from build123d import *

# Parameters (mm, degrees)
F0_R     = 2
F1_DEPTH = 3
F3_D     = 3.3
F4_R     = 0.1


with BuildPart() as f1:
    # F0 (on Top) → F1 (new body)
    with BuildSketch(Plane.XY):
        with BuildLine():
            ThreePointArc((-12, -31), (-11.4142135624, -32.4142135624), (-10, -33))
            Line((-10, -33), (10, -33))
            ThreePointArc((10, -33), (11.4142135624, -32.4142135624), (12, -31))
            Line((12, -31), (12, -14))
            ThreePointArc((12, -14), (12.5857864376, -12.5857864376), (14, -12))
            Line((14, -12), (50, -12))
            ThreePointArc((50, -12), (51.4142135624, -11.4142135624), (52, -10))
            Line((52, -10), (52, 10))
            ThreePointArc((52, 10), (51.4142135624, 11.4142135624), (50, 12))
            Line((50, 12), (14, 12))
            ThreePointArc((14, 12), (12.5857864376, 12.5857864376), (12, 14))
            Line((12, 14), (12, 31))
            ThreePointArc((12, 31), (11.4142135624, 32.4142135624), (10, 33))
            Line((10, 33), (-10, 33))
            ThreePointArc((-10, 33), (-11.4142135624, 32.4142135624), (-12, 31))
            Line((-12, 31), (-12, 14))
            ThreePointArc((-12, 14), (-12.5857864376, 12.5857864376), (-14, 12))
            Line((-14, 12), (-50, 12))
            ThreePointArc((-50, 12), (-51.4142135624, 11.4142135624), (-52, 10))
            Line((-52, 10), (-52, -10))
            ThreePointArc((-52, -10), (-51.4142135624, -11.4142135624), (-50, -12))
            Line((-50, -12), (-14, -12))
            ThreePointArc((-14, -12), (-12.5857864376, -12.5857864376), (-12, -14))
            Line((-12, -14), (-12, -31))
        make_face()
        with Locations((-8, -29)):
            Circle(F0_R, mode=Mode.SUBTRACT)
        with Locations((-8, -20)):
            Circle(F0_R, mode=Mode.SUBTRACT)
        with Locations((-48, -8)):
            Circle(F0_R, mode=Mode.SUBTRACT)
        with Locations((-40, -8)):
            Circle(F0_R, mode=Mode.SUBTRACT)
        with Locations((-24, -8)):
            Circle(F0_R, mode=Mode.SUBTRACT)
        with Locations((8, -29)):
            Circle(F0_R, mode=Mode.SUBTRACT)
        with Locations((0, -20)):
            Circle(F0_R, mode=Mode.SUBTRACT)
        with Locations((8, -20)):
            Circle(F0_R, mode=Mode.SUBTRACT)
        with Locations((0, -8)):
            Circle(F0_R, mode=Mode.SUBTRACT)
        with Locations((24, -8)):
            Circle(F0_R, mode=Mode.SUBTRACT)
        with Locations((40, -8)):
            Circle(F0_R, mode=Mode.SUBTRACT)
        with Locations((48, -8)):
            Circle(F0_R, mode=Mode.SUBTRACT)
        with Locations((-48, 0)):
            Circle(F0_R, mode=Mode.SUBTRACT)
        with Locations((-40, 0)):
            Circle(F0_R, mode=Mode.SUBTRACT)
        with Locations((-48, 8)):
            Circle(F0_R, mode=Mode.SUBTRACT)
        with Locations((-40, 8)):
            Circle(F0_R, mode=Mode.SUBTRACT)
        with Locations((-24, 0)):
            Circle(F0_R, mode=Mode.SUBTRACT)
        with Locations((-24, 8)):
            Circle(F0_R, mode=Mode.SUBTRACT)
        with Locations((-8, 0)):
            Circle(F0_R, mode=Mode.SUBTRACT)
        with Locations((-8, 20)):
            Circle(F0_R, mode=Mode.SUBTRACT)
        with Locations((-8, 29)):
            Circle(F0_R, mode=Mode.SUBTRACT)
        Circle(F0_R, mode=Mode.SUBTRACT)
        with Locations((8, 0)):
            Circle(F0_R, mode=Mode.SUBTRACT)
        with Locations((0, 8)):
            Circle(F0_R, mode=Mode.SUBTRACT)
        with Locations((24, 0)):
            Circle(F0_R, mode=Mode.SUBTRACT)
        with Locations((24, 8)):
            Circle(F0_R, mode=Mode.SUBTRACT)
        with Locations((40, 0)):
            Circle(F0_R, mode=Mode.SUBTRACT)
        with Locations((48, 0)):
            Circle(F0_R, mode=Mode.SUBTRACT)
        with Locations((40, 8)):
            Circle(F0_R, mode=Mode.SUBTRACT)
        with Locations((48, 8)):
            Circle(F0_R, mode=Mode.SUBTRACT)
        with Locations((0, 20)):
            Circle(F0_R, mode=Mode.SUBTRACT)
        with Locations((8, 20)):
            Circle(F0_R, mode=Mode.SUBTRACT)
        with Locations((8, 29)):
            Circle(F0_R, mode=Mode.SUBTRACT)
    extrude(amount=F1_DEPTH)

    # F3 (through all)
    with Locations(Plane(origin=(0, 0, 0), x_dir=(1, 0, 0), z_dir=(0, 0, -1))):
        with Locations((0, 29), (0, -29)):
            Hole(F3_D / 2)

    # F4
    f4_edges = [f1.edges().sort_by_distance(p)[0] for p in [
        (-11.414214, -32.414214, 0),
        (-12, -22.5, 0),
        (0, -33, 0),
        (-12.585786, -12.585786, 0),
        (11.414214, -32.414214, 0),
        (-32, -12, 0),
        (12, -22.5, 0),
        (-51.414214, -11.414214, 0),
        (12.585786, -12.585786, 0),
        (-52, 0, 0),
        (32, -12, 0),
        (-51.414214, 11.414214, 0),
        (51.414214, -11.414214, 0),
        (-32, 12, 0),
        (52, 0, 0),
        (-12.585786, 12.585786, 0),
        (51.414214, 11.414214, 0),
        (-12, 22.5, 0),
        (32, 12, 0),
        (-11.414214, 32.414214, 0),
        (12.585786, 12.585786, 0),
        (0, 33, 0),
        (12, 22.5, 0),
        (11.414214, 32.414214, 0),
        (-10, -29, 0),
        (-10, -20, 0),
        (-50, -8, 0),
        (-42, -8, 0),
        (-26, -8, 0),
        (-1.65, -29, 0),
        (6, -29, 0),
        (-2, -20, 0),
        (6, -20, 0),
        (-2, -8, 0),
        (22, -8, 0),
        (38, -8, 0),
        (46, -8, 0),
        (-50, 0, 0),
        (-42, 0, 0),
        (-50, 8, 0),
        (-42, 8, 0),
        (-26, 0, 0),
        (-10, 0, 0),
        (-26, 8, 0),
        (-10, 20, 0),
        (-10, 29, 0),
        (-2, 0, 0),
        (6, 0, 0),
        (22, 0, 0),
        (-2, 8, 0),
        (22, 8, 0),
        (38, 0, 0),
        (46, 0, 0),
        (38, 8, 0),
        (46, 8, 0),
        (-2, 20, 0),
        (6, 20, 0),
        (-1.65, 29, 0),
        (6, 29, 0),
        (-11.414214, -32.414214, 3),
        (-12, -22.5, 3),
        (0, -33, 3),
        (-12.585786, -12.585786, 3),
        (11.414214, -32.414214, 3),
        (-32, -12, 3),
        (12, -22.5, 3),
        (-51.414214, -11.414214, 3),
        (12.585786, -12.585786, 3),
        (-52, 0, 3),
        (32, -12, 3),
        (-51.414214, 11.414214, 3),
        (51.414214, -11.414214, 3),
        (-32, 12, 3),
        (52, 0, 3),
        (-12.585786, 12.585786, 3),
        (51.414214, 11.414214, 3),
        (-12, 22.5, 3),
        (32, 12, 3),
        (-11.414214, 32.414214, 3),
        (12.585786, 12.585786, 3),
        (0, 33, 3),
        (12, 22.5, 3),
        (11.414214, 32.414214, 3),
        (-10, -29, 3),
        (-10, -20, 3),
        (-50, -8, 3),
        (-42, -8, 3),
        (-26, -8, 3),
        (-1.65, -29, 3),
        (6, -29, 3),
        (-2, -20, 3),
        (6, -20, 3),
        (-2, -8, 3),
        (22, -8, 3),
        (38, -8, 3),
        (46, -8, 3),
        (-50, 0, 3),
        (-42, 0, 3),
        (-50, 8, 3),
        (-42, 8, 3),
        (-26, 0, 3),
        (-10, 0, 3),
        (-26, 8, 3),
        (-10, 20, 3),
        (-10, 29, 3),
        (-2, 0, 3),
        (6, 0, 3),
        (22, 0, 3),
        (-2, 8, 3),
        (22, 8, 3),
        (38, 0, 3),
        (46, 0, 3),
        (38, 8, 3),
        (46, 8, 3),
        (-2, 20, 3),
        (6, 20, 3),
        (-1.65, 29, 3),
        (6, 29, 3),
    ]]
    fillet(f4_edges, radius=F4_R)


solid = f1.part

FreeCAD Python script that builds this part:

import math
import FreeCAD as App
import Part
import Sketcher

V = App.Vector
Q = App.Units.Quantity


def edges_at(feature, points):
    """Names of the edges that pass closest to the given points."""
    edges = feature.Shape.Edges
    near = lambda p: min(range(len(edges)), key=lambda i: edges[i].distToShape(Part.Vertex(*p))[0])
    return sorted({f"Edge{near(p) + 1}" for p in points})

doc = App.newDocument("Part")
body = doc.addObject("PartDesign::Body", "Body")

sketch1 = body.newObject("Sketcher::SketchObject", "Sketch")
sketch1.AttachmentSupport = (doc.getObject("XY_Plane"), [""])
sketch1.MapMode = "FlatFace"
sketch1.addGeometry(Part.ArcOfCircle(Part.Circle(V(-10, -31, 0), V(0, 0, 1), 2), math.radians(180), math.radians(270)), False)
sketch1.addGeometry(Part.LineSegment(V(-10, -33, 0), V(10, -33, 0)), False)
sketch1.addGeometry(Part.ArcOfCircle(Part.Circle(V(10, -31, 0), V(0, 0, 1), 2), math.radians(-90), math.radians(0)), False)
sketch1.addGeometry(Part.LineSegment(V(12, -31, 0), V(12, -14, 0)), False)
sketch1.addGeometry(Part.ArcOfCircle(Part.Circle(V(14, -14, 0), V(0, 0, 1), 2), math.radians(90), math.radians(180)), False)
sketch1.addGeometry(Part.LineSegment(V(14, -12, 0), V(50, -12, 0)), False)
sketch1.addGeometry(Part.ArcOfCircle(Part.Circle(V(50, -10, 0), V(0, 0, 1), 2), math.radians(-90), math.radians(0)), False)
sketch1.addGeometry(Part.LineSegment(V(52, -10, 0), V(52, 10, 0)), False)
sketch1.addGeometry(Part.ArcOfCircle(Part.Circle(V(50, 10, 0), V(0, 0, 1), 2), math.radians(0), math.radians(90)), False)
sketch1.addGeometry(Part.LineSegment(V(50, 12, 0), V(14, 12, 0)), False)
sketch1.addGeometry(Part.ArcOfCircle(Part.Circle(V(14, 14, 0), V(0, 0, 1), 2), math.radians(180), math.radians(270)), False)
sketch1.addGeometry(Part.LineSegment(V(12, 14, 0), V(12, 31, 0)), False)
sketch1.addGeometry(Part.ArcOfCircle(Part.Circle(V(10, 31, 0), V(0, 0, 1), 2), math.radians(0), math.radians(90)), False)
sketch1.addGeometry(Part.LineSegment(V(10, 33, 0), V(-10, 33, 0)), False)
sketch1.addGeometry(Part.ArcOfCircle(Part.Circle(V(-10, 31, 0), V(0, 0, 1), 2), math.radians(90), math.radians(180)), False)
sketch1.addGeometry(Part.LineSegment(V(-12, 31, 0), V(-12, 14, 0)), False)
sketch1.addGeometry(Part.ArcOfCircle(Part.Circle(V(-14, 14, 0), V(0, 0, 1), 2), math.radians(-90), math.radians(0)), False)
sketch1.addGeometry(Part.LineSegment(V(-14, 12, 0), V(-50, 12, 0)), False)
sketch1.addGeometry(Part.ArcOfCircle(Part.Circle(V(-50, 10, 0), V(0, 0, 1), 2), math.radians(90), math.radians(180)), False)
sketch1.addGeometry(Part.LineSegment(V(-52, 10, 0), V(-52, -10, 0)), False)
sketch1.addGeometry(Part.ArcOfCircle(Part.Circle(V(-50, -10, 0), V(0, 0, 1), 2), math.radians(180), math.radians(270)), False)
sketch1.addGeometry(Part.LineSegment(V(-50, -12, 0), V(-14, -12, 0)), False)
sketch1.addGeometry(Part.ArcOfCircle(Part.Circle(V(-14, -14, 0), V(0, 0, 1), 2), math.radians(0), math.radians(90)), False)
sketch1.addGeometry(Part.LineSegment(V(-12, -14, 0), V(-12, -31, 0)), False)
sketch1.addGeometry(Part.Circle(V(-8, -29, 0), V(0, 0, 1), 2), False)
sketch1.addGeometry(Part.Circle(V(-8, -20, 0), V(0, 0, 1), 2), False)
sketch1.addGeometry(Part.Circle(V(-48, -8, 0), V(0, 0, 1), 2), False)
sketch1.addGeometry(Part.Circle(V(-40, -8, 0), V(0, 0, 1), 2), False)
sketch1.addGeometry(Part.Circle(V(-24, -8, 0), V(0, 0, 1), 2), False)
sketch1.addGeometry(Part.Circle(V(8, -29, 0), V(0, 0, 1), 2), False)
sketch1.addGeometry(Part.Circle(V(0, -20, 0), V(0, 0, 1), 2), False)
sketch1.addGeometry(Part.Circle(V(8, -20, 0), V(0, 0, 1), 2), False)
sketch1.addGeometry(Part.Circle(V(0, -8, 0), V(0, 0, 1), 2), False)
sketch1.addGeometry(Part.Circle(V(24, -8, 0), V(0, 0, 1), 2), False)
sketch1.addGeometry(Part.Circle(V(40, -8, 0), V(0, 0, 1), 2), False)
sketch1.addGeometry(Part.Circle(V(48, -8, 0), V(0, 0, 1), 2), False)
sketch1.addGeometry(Part.Circle(V(-48, 0, 0), V(0, 0, 1), 2), False)
sketch1.addGeometry(Part.Circle(V(-40, 0, 0), V(0, 0, 1), 2), False)
sketch1.addGeometry(Part.Circle(V(-48, 8, 0), V(0, 0, 1), 2), False)
sketch1.addGeometry(Part.Circle(V(-40, 8, 0), V(0, 0, 1), 2), False)
sketch1.addGeometry(Part.Circle(V(-24, 0, 0), V(0, 0, 1), 2), False)
sketch1.addGeometry(Part.Circle(V(-8, 0, 0), V(0, 0, 1), 2), False)
sketch1.addGeometry(Part.Circle(V(-24, 8, 0), V(0, 0, 1), 2), False)
sketch1.addGeometry(Part.Circle(V(-8, 20, 0), V(0, 0, 1), 2), False)
sketch1.addGeometry(Part.Circle(V(-8, 29, 0), V(0, 0, 1), 2), False)
sketch1.addGeometry(Part.Circle(V(0, 0, 0), V(0, 0, 1), 2), False)
sketch1.addGeometry(Part.Circle(V(8, 0, 0), V(0, 0, 1), 2), False)
sketch1.addGeometry(Part.Circle(V(24, 0, 0), V(0, 0, 1), 2), False)
sketch1.addGeometry(Part.Circle(V(0, 8, 0), V(0, 0, 1), 2), False)
sketch1.addGeometry(Part.Circle(V(24, 8, 0), V(0, 0, 1), 2), False)
sketch1.addGeometry(Part.Circle(V(40, 0, 0), V(0, 0, 1), 2), False)
sketch1.addGeometry(Part.Circle(V(48, 0, 0), V(0, 0, 1), 2), False)
sketch1.addGeometry(Part.Circle(V(40, 8, 0), V(0, 0, 1), 2), False)
sketch1.addGeometry(Part.Circle(V(48, 8, 0), V(0, 0, 1), 2), False)
sketch1.addGeometry(Part.Circle(V(0, 20, 0), V(0, 0, 1), 2), False)
sketch1.addGeometry(Part.Circle(V(8, 20, 0), V(0, 0, 1), 2), False)
sketch1.addGeometry(Part.Circle(V(8, 29, 0), V(0, 0, 1), 2), False)
sketch1.addConstraint(Sketcher.Constraint("Tangent", 0, 2, 1, 1))
sketch1.addConstraint(Sketcher.Constraint("Tangent", 1, 2, 2, 1))
sketch1.addConstraint(Sketcher.Constraint("Tangent", 2, 2, 3, 1))
sketch1.addConstraint(Sketcher.Constraint("Tangent", 3, 2, 4, 2))
sketch1.addConstraint(Sketcher.Constraint("Tangent", 4, 1, 5, 1))
sketch1.addConstraint(Sketcher.Constraint("Tangent", 5, 2, 6, 1))
sketch1.addConstraint(Sketcher.Constraint("Tangent", 6, 2, 7, 1))
sketch1.addConstraint(Sketcher.Constraint("Tangent", 7, 2, 8, 1))
sketch1.addConstraint(Sketcher.Constraint("Tangent", 8, 2, 9, 1))
sketch1.addConstraint(Sketcher.Constraint("Tangent", 9, 2, 10, 2))
sketch1.addConstraint(Sketcher.Constraint("Tangent", 10, 1, 11, 1))
sketch1.addConstraint(Sketcher.Constraint("Tangent", 11, 2, 12, 1))
sketch1.addConstraint(Sketcher.Constraint("Tangent", 12, 2, 13, 1))
sketch1.addConstraint(Sketcher.Constraint("Tangent", 13, 2, 14, 1))
sketch1.addConstraint(Sketcher.Constraint("Tangent", 14, 2, 15, 1))
sketch1.addConstraint(Sketcher.Constraint("Tangent", 15, 2, 16, 2))
sketch1.addConstraint(Sketcher.Constraint("Tangent", 16, 1, 17, 1))
sketch1.addConstraint(Sketcher.Constraint("Tangent", 17, 2, 18, 1))
sketch1.addConstraint(Sketcher.Constraint("Tangent", 18, 2, 19, 1))
sketch1.addConstraint(Sketcher.Constraint("Tangent", 19, 2, 20, 1))
sketch1.addConstraint(Sketcher.Constraint("Tangent", 20, 2, 21, 1))
sketch1.addConstraint(Sketcher.Constraint("Tangent", 21, 2, 22, 2))
sketch1.addConstraint(Sketcher.Constraint("Tangent", 22, 1, 23, 1))
sketch1.addConstraint(Sketcher.Constraint("Tangent", 23, 2, 0, 1))
sketch1.addConstraint(Sketcher.Constraint("Horizontal", 1))
sketch1.addConstraint(Sketcher.Constraint("Vertical", 3))
sketch1.addConstraint(Sketcher.Constraint("Horizontal", 5))
sketch1.addConstraint(Sketcher.Constraint("Vertical", 7))
sketch1.addConstraint(Sketcher.Constraint("Horizontal", 9))
sketch1.addConstraint(Sketcher.Constraint("Vertical", 11))
sketch1.addConstraint(Sketcher.Constraint("Horizontal", 13))
sketch1.addConstraint(Sketcher.Constraint("Vertical", 15))
sketch1.addConstraint(Sketcher.Constraint("Horizontal", 17))
sketch1.addConstraint(Sketcher.Constraint("Vertical", 19))
sketch1.addConstraint(Sketcher.Constraint("Horizontal", 21))
sketch1.addConstraint(Sketcher.Constraint("Vertical", 23))
sketch1.addConstraint(Sketcher.Constraint("Coincident", 45, 3, -1, 1))
sketch1.addConstraint(Sketcher.Constraint("Equal", 0, 2))
sketch1.addConstraint(Sketcher.Constraint("Equal", 2, 4))
sketch1.addConstraint(Sketcher.Constraint("Equal", 4, 6))
sketch1.addConstraint(Sketcher.Constraint("Equal", 6, 8))
sketch1.addConstraint(Sketcher.Constraint("Equal", 8, 10))
sketch1.addConstraint(Sketcher.Constraint("Equal", 10, 12))
sketch1.addConstraint(Sketcher.Constraint("Equal", 12, 14))
sketch1.addConstraint(Sketcher.Constraint("Equal", 14, 16))
sketch1.addConstraint(Sketcher.Constraint("Equal", 16, 18))
sketch1.addConstraint(Sketcher.Constraint("Equal", 18, 20))
sketch1.addConstraint(Sketcher.Constraint("Equal", 20, 22))
sketch1.addConstraint(Sketcher.Constraint("Equal", 22, 24))
sketch1.addConstraint(Sketcher.Constraint("Equal", 24, 25))
sketch1.addConstraint(Sketcher.Constraint("Equal", 25, 26))
sketch1.addConstraint(Sketcher.Constraint("Equal", 26, 27))
sketch1.addConstraint(Sketcher.Constraint("Equal", 27, 28))
sketch1.addConstraint(Sketcher.Constraint("Equal", 28, 29))
sketch1.addConstraint(Sketcher.Constraint("Equal", 29, 30))
sketch1.addConstraint(Sketcher.Constraint("Equal", 30, 31))
sketch1.addConstraint(Sketcher.Constraint("Equal", 31, 32))
sketch1.addConstraint(Sketcher.Constraint("Equal", 32, 33))
sketch1.addConstraint(Sketcher.Constraint("Equal", 33, 34))
sketch1.addConstraint(Sketcher.Constraint("Equal", 34, 35))
sketch1.addConstraint(Sketcher.Constraint("Equal", 35, 36))
sketch1.addConstraint(Sketcher.Constraint("Equal", 36, 37))
sketch1.addConstraint(Sketcher.Constraint("Equal", 37, 38))
sketch1.addConstraint(Sketcher.Constraint("Equal", 38, 39))
sketch1.addConstraint(Sketcher.Constraint("Equal", 39, 40))
sketch1.addConstraint(Sketcher.Constraint("Equal", 40, 41))
sketch1.addConstraint(Sketcher.Constraint("Equal", 41, 42))
sketch1.addConstraint(Sketcher.Constraint("Equal", 42, 43))
sketch1.addConstraint(Sketcher.Constraint("Equal", 43, 44))
sketch1.addConstraint(Sketcher.Constraint("Equal", 44, 45))
sketch1.addConstraint(Sketcher.Constraint("Equal", 45, 46))
sketch1.addConstraint(Sketcher.Constraint("Equal", 46, 47))
sketch1.addConstraint(Sketcher.Constraint("Equal", 47, 48))
sketch1.addConstraint(Sketcher.Constraint("Equal", 48, 49))
sketch1.addConstraint(Sketcher.Constraint("Equal", 49, 50))
sketch1.addConstraint(Sketcher.Constraint("Equal", 50, 51))
sketch1.addConstraint(Sketcher.Constraint("Equal", 51, 52))
sketch1.addConstraint(Sketcher.Constraint("Equal", 52, 53))
sketch1.addConstraint(Sketcher.Constraint("Equal", 53, 54))
sketch1.addConstraint(Sketcher.Constraint("Equal", 54, 55))
sketch1.addConstraint(Sketcher.Constraint("Equal", 55, 56))
sketch1.addConstraint(Sketcher.Constraint("Symmetric", 0, 3, 12, 3, -1, 1))
sketch1.addConstraint(Sketcher.Constraint("Symmetric", 4, 3, 16, 3, -1, 1))
sketch1.addConstraint(Sketcher.Constraint("Symmetric", 8, 3, 20, 3, -1, 1))
sketch1.addConstraint(Sketcher.Constraint("Symmetric", 35, 3, 38, 3, -1, 1))
sketch1.addConstraint(Sketcher.Constraint("Symmetric", 34, 3, 39, 3, -1, 1))
sketch1.addConstraint(Sketcher.Constraint("Symmetric", 33, 3, 42, 3, -1, 1))
sketch1.addConstraint(Sketcher.Constraint("Symmetric", 31, 3, 43, 3, -1, 1))
sketch1.addConstraint(Sketcher.Constraint("Symmetric", 29, 3, 44, 3, -1, 1))
sketch1.addConstraint(Sketcher.Constraint("Symmetric", 41, 3, 46, 3, -1, 1))
sketch1.addConstraint(Sketcher.Constraint("Symmetric", 40, 3, 47, 3, -1, 1))
sketch1.addConstraint(Sketcher.Constraint("Symmetric", 32, 3, 48, 3, -1, 1))
sketch1.addConstraint(Sketcher.Constraint("Symmetric", 28, 3, 49, 3, -1, 1))
sketch1.addConstraint(Sketcher.Constraint("Symmetric", 37, 3, 50, 3, -1, 1))
sketch1.addConstraint(Sketcher.Constraint("Symmetric", 36, 3, 51, 3, -1, 1))
sketch1.addConstraint(Sketcher.Constraint("Symmetric", 27, 3, 52, 3, -1, 1))
sketch1.addConstraint(Sketcher.Constraint("Symmetric", 26, 3, 53, 3, -1, 1))
sketch1.addConstraint(Sketcher.Constraint("Symmetric", 30, 3, 54, 3, -1, 1))
sketch1.addConstraint(Sketcher.Constraint("Symmetric", 25, 3, 55, 3, -1, 1))
sketch1.addConstraint(Sketcher.Constraint("Symmetric", 24, 3, 56, 3, -1, 1))
sketch1.addConstraint(Sketcher.Constraint("Symmetric", 10, 3, 16, 3, -2))
sketch1.addConstraint(Sketcher.Constraint("Symmetric", 24, 3, 29, 3, -2))
sketch1.addConstraint(Sketcher.Constraint("Symmetric", 25, 3, 31, 3, -2))
sketch1.addConstraint(Sketcher.Constraint("Symmetric", 28, 3, 33, 3, -2))
sketch1.addConstraint(Sketcher.Constraint("Symmetric", 27, 3, 34, 3, -2))
sketch1.addConstraint(Sketcher.Constraint("Symmetric", 26, 3, 35, 3, -2))
sketch1.addConstraint(Sketcher.Constraint("PointOnObject", 30, 3, -2))
sketch1.addConstraint(Sketcher.Constraint("PointOnObject", 32, 3, -2))
sketch1.addConstraint(Sketcher.Constraint("PointOnObject", 36, 3, -1))
sketch1.addConstraint(Sketcher.Constraint("PointOnObject", 37, 3, -1))
sketch1.addConstraint(Sketcher.Constraint("PointOnObject", 40, 3, -1))
sketch1.addConstraint(Sketcher.Constraint("PointOnObject", 41, 3, -1))
sketch1.addConstraint(Sketcher.Constraint("Horizontal", 26, 3, 27, 3))
sketch1.addConstraint(Sketcher.Constraint("Horizontal", 27, 3, 28, 3))
sketch1.addConstraint(Sketcher.Constraint("Horizontal", 25, 3, 30, 3))
sketch1.addConstraint(Sketcher.Constraint("Horizontal", 28, 3, 32, 3))
sketch1.addConstraint(Sketcher.Constraint("Vertical", 24, 3, 25, 3))
sketch1.addConstraint(Sketcher.Constraint("Vertical", 26, 3, 36, 3))
sketch1.addConstraint(Sketcher.Constraint("Vertical", 27, 3, 37, 3))
sketch1.addConstraint(Sketcher.Constraint("Vertical", 28, 3, 40, 3))
sketch1.addConstraint(Sketcher.Constraint("Vertical", 25, 3, 41, 3))
sketch1.addConstraint(Sketcher.Constraint("Equal", 13, 7))
sketch1.addConstraint(Sketcher.Constraint("Diameter", 24, Q("4 mm")))
sketch1.addConstraint(Sketcher.Constraint("DistanceX", 1, 1, 1, 2, Q("20 mm")))
sketch1.addConstraint(Sketcher.Constraint("DistanceX", 5, 1, 5, 2, Q("36 mm")))
sketch1.addConstraint(Sketcher.Constraint("DistanceY", 3, 1, 3, 2, Q("17 mm")))
sketch1.addConstraint(Sketcher.Constraint("DistanceX", 24, 3, -1, 1, Q("8 mm")))
sketch1.addConstraint(Sketcher.Constraint("DistanceY", 24, 3, -1, 1, Q("29 mm")))
sketch1.addConstraint(Sketcher.Constraint("DistanceY", 25, 3, -1, 1, Q("20 mm")))
sketch1.addConstraint(Sketcher.Constraint("DistanceX", 26, 3, -1, 1, Q("48 mm")))
sketch1.addConstraint(Sketcher.Constraint("DistanceY", 26, 3, -1, 1, Q("8 mm")))
sketch1.addConstraint(Sketcher.Constraint("DistanceX", 27, 3, -1, 1, Q("40 mm")))
sketch1.addConstraint(Sketcher.Constraint("DistanceX", 28, 3, -1, 1, Q("24 mm")))
pad1 = body.newObject("PartDesign::Pad", "Pad")
pad1.Profile = sketch1
pad1.Length = 3

sketch2 = body.newObject("Sketcher::SketchObject", "Sketch001")
sketch2.AttachmentSupport = (doc.getObject("XY_Plane"), [""])
sketch2.MapMode = "FlatFace"
sketch2.addGeometry(Part.Circle(V(0, -29, 0), V(0, 0, 1), 1.6), False)
sketch2.addGeometry(Part.Circle(V(0, 29, 0), V(0, 0, 1), 1.6), False)
sketch2.addConstraint(Sketcher.Constraint("Equal", 0, 1))
sketch2.addConstraint(Sketcher.Constraint("Symmetric", 0, 3, 1, 3, -1, 1))
sketch2.addConstraint(Sketcher.Constraint("PointOnObject", 0, 3, -2))
sketch2.addConstraint(Sketcher.Constraint("Diameter", 0, Q("3.3 mm")))
sketch2.addConstraint(Sketcher.Constraint("DistanceY", 0, 3, -1, 1, Q("29 mm")))
doc.recompute()
hole = body.newObject("PartDesign::Hole", "Hole")
hole.Profile = sketch2
hole.ThreadType = "None"
hole.Diameter = 3.3
hole.DepthType = "ThroughAll"
hole.Reversed = True
doc.recompute()

fillet = body.newObject("PartDesign::Fillet", "Fillet")
fillet.Base = (hole, edges_at(hole, [
    (-11.414, -32.414, 0),
    (-12, -22.5, 0),
    (0, -33, 0),
    (-12.586, -12.586, 0),
    (11.414, -32.414, 0),
    (-32, -12, 0),
    (12, -22.5, 0),
    (-51.414, -11.414, 0),
    (12.586, -12.586, 0),
    (-52, 0, 0),
    (32, -12, 0),
    (-51.414, 11.414, 0),
    (51.414, -11.414, 0),
    (-32, 12, 0),
    (52, 0, 0),
    (-12.586, 12.586, 0),
    (51.414, 11.414, 0),
    (-12, 22.5, 0),
    (32, 12, 0),
    (-11.414, 32.414, 0),
    (12.586, 12.586, 0),
    (0, 33, 0),
    (12, 22.5, 0),
    (11.414, 32.414, 0),
    (-10, -29, 0),
    (-10, -20, 0),
    (-50, -8, 0),
    (-42, -8, 0),
    (-26, -8, 0),
    (1.65, -29, 0),
    (6, -29, 0),
    (-2, -20, 0),
    (6, -20, 0),
    (-2, -8, 0),
    (22, -8, 0),
    (38, -8, 0),
    (46, -8, 0),
    (-50, 0, 0),
    (-42, 0, 0),
    (-50, 8, 0),
    (-42, 8, 0),
    (-26, 0, 0),
    (-10, 0, 0),
    (-26, 8, 0),
    (-10, 20, 0),
    (-10, 29, 0),
    (-2, 0, 0),
    (6, 0, 0),
    (22, 0, 0),
    (-2, 8, 0),
    (22, 8, 0),
    (38, 0, 0),
    (46, 0, 0),
    (38, 8, 0),
    (46, 8, 0),
    (-2, 20, 0),
    (6, 20, 0),
    (1.65, 29, 0),
    (6, 29, 0),
    (-11.414, -32.414, 3),
    (-12, -22.5, 3),
    (0, -33, 3),
    (-12.586, -12.586, 3),
    (11.414, -32.414, 3),
    (-32, -12, 3),
    (12, -22.5, 3),
    (-51.414, -11.414, 3),
    (12.586, -12.586, 3),
    (-52, 0, 3),
    (32, -12, 3),
    (-51.414, 11.414, 3),
    (51.414, -11.414, 3),
    (-32, 12, 3),
    (52, 0, 3),
    (-12.586, 12.586, 3),
    (51.414, 11.414, 3),
    (-12, 22.5, 3),
    (32, 12, 3),
    (-11.414, 32.414, 3),
    (12.586, 12.586, 3),
    (0, 33, 3),
    (12, 22.5, 3),
    (11.414, 32.414, 3),
    (-10, -29, 3),
    (-10, -20, 3),
    (-50, -8, 3),
    (-42, -8, 3),
    (-26, -8, 3),
    (1.65, -29, 3),
    (6, -29, 3),
    (-2, -20, 3),
    (6, -20, 3),
    (-2, -8, 3),
    (22, -8, 3),
    (38, -8, 3),
    (46, -8, 3),
    (-50, 0, 3),
    (-42, 0, 3),
    (-50, 8, 3),
    (-42, 8, 3),
    (-26, 0, 3),
    (-10, 0, 3),
    (-26, 8, 3),
    (-10, 20, 3),
    (-10, 29, 3),
    (-2, 0, 3),
    (6, 0, 3),
    (22, 0, 3),
    (-2, 8, 3),
    (22, 8, 3),
    (38, 0, 3),
    (46, 0, 3),
    (38, 8, 3),
    (46, 8, 3),
    (-2, 20, 3),
    (6, 20, 3),
    (1.65, 29, 3),
    (6, 29, 3),
]))
fillet.Radius = 0.1

doc.recompute()
